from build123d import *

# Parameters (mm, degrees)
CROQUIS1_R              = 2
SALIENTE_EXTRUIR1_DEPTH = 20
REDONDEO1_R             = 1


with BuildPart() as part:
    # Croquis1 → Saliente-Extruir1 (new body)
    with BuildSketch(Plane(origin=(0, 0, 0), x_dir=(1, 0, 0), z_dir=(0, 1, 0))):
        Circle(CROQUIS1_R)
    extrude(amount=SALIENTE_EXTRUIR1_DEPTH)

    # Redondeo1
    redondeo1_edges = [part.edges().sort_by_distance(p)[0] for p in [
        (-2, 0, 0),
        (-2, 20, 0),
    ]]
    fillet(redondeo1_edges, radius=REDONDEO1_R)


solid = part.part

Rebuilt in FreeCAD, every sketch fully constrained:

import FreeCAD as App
import Part
import Sketcher
Q = App.Units.Quantity


def edges_at(feature, points):
    """Names of the edges that pass closest to the given points."""
    edges = feature.Shape.Edges
    near = lambda p: min(range(len(edges)), key=lambda i: edges[i].distToShape(Part.Vertex(*p))[0])
    return sorted({f"Edge{near(p) + 1}" for p in points})

doc = App.newDocument("Part")
body = doc.addObject("PartDesign::Body", "Body")

# Sketch on XZ plane
sketch1 = doc.addObject("Sketcher::SketchObject", "Sketch")
body.addObject(sketch1)
sketch1.AttachmentSupport = (doc.XZ_Plane, [""])
sketch1.MapMode = "FlatFace"
sketch1.addGeometry(Part.Circle(App.Vector(0, 0, 0), App.Vector(0, 0, 1), 2), False)
sketch1.addConstraint([
    Sketcher.Constraint("Coincident", 0, 3, -1, 1),
    Sketcher.Constraint("Diameter", 0, Q("4 mm")),
])
pad1 = doc.addObject("PartDesign::Pad", "Pad")
body.addObject(pad1)
pad1.Profile = sketch1
pad1.Length = 20
pad1.Reversed = True
doc.recompute()

fillet = doc.addObject("PartDesign::Fillet", "Fillet")
body.addObject(fillet)
fillet.Base = (pad1, edges_at(pad1, [(-2, 0, 0), (-2, 20, 0)]))
fillet.Radius = 1

doc.recompute()
